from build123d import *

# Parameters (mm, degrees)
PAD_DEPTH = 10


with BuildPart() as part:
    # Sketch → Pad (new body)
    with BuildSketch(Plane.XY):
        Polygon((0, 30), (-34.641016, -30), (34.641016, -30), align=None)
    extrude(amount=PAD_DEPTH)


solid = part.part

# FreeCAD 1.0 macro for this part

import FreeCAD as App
import Part
import Sketcher

V = App.Vector
Q = App.Units.Quantity

doc = App.newDocument("Part")
params = doc.addObject("Spreadsheet::Sheet", "Params")
for row, (alias, value) in enumerate([
    ("pad1_length", "10 mm"),
], start=1):
    params.set(f"A{row}", alias)
    params.set(f"B{row}", "=" + value)
    params.setAlias(f"B{row}", alias)

body = doc.addObject("PartDesign::Body", "Body")

sketch1 = body.newObject("Sketcher::SketchObject", "Sketch")
sketch1.AttachmentSupport = (doc.getObject("XY_Plane"), [""])
sketch1.MapMode = "FlatFace"
sketch1.addGeometry([
    Part.LineSegment(V(0, 30, 0), V(-34.641016, -30, 0)),
    Part.LineSegment(V(-34.641016, -30, 0), V(34.641016, -30, 0)),
    Part.LineSegment(V(34.641016, -30, 0), V(0, 30, 0)),
], False)
sketch1.addConstraint([
    Sketcher.Constraint("Coincident", 0, 2, 1, 1),
    Sketcher.Constraint("Coincident", 1, 2, 2, 1),
    Sketcher.Constraint("Coincident", 2, 2, 0, 1),
    Sketcher.Constraint("Horizontal", 1),
    Sketcher.Constraint("PointOnObject", 2, 2, -2),
    Sketcher.Constraint("Equal", 0, 2),
    Sketcher.Constraint("Angle", 0, Q("-120 deg")),
    Sketcher.Constraint("DistanceY", 0, 2, -1, 1, 30.0),
    Sketcher.Constraint("DistanceY", -1, 1, 2, 2, 30.0),
])
pad1 = body.newObject("PartDesign::Pad", "Pad")
pad1.Profile = sketch1
pad1.setExpression("Length", "Params.pad1_length")

doc.recompute()
